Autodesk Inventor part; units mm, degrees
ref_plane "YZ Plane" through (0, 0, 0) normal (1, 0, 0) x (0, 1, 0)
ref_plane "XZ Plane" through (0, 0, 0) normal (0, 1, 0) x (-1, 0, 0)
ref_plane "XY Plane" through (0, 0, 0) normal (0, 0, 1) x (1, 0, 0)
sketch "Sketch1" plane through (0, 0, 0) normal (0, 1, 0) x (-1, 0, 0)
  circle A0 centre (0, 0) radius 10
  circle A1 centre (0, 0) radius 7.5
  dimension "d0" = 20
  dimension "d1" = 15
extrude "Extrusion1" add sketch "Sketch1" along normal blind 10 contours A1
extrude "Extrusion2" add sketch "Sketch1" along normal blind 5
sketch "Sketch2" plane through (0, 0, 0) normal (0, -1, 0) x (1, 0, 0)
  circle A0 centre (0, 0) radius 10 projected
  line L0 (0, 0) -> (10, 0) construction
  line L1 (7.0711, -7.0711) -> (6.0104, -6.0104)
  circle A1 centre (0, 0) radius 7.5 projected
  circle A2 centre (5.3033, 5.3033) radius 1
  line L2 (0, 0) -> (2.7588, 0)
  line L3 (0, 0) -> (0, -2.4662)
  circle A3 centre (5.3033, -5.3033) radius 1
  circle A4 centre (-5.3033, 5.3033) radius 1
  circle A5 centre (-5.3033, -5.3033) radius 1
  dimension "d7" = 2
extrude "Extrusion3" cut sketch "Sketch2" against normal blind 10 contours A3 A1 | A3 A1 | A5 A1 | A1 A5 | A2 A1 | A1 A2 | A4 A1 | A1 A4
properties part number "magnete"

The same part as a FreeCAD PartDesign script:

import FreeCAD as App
import Part
import Sketcher

V = App.Vector

doc = App.newDocument("Part")
body = doc.addObject("PartDesign::Body", "Body")

# Sketch on XZ plane
sketch1 = body.newObject("Sketcher::SketchObject", "Sketch")
sketch1.AttachmentSupport = (doc.getObject("XZ_Plane"), [""])
sketch1.MapMode = "FlatFace"
sketch1.addGeometry(Part.Circle(V(0, 0, 0), V(0, 0, 1), 8), False)
sketch1.addConstraint([
    Sketcher.Constraint("Coincident", 0, 3, -1, 1),
    Sketcher.Constraint("Diameter", 0, 15.0),
])
pad1 = body.newObject("PartDesign::Pad", "Pad")
pad1.Profile = sketch1
pad1.Length = 10
pad1.Reversed = True

# Sketch on XZ plane
sketch2 = body.newObject("Sketcher::SketchObject", "Sketch001")
sketch2.AttachmentSupport = (doc.getObject("XZ_Plane"), [""])
sketch2.MapMode = "FlatFace"
sketch2.addGeometry([
    Part.Circle(V(0, 0, 0), V(0, 0, 1), 10),
    Part.Circle(V(0, 0, 0), V(0, 0, 1), 8),
], False)
sketch2.addConstraint([
    Sketcher.Constraint("Coincident", 0, 3, -1, 1),
    Sketcher.Constraint("Coincident", 1, 3, -1, 1),
    Sketcher.Constraint("Diameter", 0, 20.0),
    Sketcher.Constraint("Diameter", 1, 15.0),
])
pad2 = body.newObject("PartDesign::Pad", "Pad001")
pad2.Profile = sketch2
pad2.Length = 5
pad2.Reversed = True

# Sketch on XZ plane
sketch3 = body.newObject("Sketcher::SketchObject", "Sketch002")
sketch3.AttachmentSupport = (doc.getObject("XZ_Plane"), [""])
sketch3.MapMode = "FlatFace"
sketch3.addGeometry([
    Part.Circle(V(5.3, -5.3, 0), V(0, 0, 1), 1),
    Part.Circle(V(-5.3, -5.3, 0), V(0, 0, 1), 1),
    Part.Circle(V(5.3, 5.3, 0), V(0, 0, 1), 1),
    Part.Circle(V(-5.3, 5.3, 0), V(0, 0, 1), 1),
], False)
sketch3.addConstraint([
    Sketcher.Constraint("Equal", 0, 1),
    Sketcher.Constraint("Equal", 1, 2),
    Sketcher.Constraint("Equal", 2, 3),
    Sketcher.Constraint("Symmetric", 1, 3, 2, 3, -1, 1),
    Sketcher.Constraint("Symmetric", 0, 3, 3, 3, -1, 1),
    Sketcher.Constraint("Symmetric", 0, 3, 1, 3, -2),
    Sketcher.Constraint("Diameter", 0, 2.0),
    Sketcher.Constraint("DistanceX", -1, 1, 0, 3, 5.3033),
    Sketcher.Constraint("DistanceY", 0, 3, -1, 1, 5.3033),
])
pocket1 = body.newObject("PartDesign::Pocket", "Pocket")
pocket1.Profile = sketch3
pocket1.Length = 10

doc.recompute()
